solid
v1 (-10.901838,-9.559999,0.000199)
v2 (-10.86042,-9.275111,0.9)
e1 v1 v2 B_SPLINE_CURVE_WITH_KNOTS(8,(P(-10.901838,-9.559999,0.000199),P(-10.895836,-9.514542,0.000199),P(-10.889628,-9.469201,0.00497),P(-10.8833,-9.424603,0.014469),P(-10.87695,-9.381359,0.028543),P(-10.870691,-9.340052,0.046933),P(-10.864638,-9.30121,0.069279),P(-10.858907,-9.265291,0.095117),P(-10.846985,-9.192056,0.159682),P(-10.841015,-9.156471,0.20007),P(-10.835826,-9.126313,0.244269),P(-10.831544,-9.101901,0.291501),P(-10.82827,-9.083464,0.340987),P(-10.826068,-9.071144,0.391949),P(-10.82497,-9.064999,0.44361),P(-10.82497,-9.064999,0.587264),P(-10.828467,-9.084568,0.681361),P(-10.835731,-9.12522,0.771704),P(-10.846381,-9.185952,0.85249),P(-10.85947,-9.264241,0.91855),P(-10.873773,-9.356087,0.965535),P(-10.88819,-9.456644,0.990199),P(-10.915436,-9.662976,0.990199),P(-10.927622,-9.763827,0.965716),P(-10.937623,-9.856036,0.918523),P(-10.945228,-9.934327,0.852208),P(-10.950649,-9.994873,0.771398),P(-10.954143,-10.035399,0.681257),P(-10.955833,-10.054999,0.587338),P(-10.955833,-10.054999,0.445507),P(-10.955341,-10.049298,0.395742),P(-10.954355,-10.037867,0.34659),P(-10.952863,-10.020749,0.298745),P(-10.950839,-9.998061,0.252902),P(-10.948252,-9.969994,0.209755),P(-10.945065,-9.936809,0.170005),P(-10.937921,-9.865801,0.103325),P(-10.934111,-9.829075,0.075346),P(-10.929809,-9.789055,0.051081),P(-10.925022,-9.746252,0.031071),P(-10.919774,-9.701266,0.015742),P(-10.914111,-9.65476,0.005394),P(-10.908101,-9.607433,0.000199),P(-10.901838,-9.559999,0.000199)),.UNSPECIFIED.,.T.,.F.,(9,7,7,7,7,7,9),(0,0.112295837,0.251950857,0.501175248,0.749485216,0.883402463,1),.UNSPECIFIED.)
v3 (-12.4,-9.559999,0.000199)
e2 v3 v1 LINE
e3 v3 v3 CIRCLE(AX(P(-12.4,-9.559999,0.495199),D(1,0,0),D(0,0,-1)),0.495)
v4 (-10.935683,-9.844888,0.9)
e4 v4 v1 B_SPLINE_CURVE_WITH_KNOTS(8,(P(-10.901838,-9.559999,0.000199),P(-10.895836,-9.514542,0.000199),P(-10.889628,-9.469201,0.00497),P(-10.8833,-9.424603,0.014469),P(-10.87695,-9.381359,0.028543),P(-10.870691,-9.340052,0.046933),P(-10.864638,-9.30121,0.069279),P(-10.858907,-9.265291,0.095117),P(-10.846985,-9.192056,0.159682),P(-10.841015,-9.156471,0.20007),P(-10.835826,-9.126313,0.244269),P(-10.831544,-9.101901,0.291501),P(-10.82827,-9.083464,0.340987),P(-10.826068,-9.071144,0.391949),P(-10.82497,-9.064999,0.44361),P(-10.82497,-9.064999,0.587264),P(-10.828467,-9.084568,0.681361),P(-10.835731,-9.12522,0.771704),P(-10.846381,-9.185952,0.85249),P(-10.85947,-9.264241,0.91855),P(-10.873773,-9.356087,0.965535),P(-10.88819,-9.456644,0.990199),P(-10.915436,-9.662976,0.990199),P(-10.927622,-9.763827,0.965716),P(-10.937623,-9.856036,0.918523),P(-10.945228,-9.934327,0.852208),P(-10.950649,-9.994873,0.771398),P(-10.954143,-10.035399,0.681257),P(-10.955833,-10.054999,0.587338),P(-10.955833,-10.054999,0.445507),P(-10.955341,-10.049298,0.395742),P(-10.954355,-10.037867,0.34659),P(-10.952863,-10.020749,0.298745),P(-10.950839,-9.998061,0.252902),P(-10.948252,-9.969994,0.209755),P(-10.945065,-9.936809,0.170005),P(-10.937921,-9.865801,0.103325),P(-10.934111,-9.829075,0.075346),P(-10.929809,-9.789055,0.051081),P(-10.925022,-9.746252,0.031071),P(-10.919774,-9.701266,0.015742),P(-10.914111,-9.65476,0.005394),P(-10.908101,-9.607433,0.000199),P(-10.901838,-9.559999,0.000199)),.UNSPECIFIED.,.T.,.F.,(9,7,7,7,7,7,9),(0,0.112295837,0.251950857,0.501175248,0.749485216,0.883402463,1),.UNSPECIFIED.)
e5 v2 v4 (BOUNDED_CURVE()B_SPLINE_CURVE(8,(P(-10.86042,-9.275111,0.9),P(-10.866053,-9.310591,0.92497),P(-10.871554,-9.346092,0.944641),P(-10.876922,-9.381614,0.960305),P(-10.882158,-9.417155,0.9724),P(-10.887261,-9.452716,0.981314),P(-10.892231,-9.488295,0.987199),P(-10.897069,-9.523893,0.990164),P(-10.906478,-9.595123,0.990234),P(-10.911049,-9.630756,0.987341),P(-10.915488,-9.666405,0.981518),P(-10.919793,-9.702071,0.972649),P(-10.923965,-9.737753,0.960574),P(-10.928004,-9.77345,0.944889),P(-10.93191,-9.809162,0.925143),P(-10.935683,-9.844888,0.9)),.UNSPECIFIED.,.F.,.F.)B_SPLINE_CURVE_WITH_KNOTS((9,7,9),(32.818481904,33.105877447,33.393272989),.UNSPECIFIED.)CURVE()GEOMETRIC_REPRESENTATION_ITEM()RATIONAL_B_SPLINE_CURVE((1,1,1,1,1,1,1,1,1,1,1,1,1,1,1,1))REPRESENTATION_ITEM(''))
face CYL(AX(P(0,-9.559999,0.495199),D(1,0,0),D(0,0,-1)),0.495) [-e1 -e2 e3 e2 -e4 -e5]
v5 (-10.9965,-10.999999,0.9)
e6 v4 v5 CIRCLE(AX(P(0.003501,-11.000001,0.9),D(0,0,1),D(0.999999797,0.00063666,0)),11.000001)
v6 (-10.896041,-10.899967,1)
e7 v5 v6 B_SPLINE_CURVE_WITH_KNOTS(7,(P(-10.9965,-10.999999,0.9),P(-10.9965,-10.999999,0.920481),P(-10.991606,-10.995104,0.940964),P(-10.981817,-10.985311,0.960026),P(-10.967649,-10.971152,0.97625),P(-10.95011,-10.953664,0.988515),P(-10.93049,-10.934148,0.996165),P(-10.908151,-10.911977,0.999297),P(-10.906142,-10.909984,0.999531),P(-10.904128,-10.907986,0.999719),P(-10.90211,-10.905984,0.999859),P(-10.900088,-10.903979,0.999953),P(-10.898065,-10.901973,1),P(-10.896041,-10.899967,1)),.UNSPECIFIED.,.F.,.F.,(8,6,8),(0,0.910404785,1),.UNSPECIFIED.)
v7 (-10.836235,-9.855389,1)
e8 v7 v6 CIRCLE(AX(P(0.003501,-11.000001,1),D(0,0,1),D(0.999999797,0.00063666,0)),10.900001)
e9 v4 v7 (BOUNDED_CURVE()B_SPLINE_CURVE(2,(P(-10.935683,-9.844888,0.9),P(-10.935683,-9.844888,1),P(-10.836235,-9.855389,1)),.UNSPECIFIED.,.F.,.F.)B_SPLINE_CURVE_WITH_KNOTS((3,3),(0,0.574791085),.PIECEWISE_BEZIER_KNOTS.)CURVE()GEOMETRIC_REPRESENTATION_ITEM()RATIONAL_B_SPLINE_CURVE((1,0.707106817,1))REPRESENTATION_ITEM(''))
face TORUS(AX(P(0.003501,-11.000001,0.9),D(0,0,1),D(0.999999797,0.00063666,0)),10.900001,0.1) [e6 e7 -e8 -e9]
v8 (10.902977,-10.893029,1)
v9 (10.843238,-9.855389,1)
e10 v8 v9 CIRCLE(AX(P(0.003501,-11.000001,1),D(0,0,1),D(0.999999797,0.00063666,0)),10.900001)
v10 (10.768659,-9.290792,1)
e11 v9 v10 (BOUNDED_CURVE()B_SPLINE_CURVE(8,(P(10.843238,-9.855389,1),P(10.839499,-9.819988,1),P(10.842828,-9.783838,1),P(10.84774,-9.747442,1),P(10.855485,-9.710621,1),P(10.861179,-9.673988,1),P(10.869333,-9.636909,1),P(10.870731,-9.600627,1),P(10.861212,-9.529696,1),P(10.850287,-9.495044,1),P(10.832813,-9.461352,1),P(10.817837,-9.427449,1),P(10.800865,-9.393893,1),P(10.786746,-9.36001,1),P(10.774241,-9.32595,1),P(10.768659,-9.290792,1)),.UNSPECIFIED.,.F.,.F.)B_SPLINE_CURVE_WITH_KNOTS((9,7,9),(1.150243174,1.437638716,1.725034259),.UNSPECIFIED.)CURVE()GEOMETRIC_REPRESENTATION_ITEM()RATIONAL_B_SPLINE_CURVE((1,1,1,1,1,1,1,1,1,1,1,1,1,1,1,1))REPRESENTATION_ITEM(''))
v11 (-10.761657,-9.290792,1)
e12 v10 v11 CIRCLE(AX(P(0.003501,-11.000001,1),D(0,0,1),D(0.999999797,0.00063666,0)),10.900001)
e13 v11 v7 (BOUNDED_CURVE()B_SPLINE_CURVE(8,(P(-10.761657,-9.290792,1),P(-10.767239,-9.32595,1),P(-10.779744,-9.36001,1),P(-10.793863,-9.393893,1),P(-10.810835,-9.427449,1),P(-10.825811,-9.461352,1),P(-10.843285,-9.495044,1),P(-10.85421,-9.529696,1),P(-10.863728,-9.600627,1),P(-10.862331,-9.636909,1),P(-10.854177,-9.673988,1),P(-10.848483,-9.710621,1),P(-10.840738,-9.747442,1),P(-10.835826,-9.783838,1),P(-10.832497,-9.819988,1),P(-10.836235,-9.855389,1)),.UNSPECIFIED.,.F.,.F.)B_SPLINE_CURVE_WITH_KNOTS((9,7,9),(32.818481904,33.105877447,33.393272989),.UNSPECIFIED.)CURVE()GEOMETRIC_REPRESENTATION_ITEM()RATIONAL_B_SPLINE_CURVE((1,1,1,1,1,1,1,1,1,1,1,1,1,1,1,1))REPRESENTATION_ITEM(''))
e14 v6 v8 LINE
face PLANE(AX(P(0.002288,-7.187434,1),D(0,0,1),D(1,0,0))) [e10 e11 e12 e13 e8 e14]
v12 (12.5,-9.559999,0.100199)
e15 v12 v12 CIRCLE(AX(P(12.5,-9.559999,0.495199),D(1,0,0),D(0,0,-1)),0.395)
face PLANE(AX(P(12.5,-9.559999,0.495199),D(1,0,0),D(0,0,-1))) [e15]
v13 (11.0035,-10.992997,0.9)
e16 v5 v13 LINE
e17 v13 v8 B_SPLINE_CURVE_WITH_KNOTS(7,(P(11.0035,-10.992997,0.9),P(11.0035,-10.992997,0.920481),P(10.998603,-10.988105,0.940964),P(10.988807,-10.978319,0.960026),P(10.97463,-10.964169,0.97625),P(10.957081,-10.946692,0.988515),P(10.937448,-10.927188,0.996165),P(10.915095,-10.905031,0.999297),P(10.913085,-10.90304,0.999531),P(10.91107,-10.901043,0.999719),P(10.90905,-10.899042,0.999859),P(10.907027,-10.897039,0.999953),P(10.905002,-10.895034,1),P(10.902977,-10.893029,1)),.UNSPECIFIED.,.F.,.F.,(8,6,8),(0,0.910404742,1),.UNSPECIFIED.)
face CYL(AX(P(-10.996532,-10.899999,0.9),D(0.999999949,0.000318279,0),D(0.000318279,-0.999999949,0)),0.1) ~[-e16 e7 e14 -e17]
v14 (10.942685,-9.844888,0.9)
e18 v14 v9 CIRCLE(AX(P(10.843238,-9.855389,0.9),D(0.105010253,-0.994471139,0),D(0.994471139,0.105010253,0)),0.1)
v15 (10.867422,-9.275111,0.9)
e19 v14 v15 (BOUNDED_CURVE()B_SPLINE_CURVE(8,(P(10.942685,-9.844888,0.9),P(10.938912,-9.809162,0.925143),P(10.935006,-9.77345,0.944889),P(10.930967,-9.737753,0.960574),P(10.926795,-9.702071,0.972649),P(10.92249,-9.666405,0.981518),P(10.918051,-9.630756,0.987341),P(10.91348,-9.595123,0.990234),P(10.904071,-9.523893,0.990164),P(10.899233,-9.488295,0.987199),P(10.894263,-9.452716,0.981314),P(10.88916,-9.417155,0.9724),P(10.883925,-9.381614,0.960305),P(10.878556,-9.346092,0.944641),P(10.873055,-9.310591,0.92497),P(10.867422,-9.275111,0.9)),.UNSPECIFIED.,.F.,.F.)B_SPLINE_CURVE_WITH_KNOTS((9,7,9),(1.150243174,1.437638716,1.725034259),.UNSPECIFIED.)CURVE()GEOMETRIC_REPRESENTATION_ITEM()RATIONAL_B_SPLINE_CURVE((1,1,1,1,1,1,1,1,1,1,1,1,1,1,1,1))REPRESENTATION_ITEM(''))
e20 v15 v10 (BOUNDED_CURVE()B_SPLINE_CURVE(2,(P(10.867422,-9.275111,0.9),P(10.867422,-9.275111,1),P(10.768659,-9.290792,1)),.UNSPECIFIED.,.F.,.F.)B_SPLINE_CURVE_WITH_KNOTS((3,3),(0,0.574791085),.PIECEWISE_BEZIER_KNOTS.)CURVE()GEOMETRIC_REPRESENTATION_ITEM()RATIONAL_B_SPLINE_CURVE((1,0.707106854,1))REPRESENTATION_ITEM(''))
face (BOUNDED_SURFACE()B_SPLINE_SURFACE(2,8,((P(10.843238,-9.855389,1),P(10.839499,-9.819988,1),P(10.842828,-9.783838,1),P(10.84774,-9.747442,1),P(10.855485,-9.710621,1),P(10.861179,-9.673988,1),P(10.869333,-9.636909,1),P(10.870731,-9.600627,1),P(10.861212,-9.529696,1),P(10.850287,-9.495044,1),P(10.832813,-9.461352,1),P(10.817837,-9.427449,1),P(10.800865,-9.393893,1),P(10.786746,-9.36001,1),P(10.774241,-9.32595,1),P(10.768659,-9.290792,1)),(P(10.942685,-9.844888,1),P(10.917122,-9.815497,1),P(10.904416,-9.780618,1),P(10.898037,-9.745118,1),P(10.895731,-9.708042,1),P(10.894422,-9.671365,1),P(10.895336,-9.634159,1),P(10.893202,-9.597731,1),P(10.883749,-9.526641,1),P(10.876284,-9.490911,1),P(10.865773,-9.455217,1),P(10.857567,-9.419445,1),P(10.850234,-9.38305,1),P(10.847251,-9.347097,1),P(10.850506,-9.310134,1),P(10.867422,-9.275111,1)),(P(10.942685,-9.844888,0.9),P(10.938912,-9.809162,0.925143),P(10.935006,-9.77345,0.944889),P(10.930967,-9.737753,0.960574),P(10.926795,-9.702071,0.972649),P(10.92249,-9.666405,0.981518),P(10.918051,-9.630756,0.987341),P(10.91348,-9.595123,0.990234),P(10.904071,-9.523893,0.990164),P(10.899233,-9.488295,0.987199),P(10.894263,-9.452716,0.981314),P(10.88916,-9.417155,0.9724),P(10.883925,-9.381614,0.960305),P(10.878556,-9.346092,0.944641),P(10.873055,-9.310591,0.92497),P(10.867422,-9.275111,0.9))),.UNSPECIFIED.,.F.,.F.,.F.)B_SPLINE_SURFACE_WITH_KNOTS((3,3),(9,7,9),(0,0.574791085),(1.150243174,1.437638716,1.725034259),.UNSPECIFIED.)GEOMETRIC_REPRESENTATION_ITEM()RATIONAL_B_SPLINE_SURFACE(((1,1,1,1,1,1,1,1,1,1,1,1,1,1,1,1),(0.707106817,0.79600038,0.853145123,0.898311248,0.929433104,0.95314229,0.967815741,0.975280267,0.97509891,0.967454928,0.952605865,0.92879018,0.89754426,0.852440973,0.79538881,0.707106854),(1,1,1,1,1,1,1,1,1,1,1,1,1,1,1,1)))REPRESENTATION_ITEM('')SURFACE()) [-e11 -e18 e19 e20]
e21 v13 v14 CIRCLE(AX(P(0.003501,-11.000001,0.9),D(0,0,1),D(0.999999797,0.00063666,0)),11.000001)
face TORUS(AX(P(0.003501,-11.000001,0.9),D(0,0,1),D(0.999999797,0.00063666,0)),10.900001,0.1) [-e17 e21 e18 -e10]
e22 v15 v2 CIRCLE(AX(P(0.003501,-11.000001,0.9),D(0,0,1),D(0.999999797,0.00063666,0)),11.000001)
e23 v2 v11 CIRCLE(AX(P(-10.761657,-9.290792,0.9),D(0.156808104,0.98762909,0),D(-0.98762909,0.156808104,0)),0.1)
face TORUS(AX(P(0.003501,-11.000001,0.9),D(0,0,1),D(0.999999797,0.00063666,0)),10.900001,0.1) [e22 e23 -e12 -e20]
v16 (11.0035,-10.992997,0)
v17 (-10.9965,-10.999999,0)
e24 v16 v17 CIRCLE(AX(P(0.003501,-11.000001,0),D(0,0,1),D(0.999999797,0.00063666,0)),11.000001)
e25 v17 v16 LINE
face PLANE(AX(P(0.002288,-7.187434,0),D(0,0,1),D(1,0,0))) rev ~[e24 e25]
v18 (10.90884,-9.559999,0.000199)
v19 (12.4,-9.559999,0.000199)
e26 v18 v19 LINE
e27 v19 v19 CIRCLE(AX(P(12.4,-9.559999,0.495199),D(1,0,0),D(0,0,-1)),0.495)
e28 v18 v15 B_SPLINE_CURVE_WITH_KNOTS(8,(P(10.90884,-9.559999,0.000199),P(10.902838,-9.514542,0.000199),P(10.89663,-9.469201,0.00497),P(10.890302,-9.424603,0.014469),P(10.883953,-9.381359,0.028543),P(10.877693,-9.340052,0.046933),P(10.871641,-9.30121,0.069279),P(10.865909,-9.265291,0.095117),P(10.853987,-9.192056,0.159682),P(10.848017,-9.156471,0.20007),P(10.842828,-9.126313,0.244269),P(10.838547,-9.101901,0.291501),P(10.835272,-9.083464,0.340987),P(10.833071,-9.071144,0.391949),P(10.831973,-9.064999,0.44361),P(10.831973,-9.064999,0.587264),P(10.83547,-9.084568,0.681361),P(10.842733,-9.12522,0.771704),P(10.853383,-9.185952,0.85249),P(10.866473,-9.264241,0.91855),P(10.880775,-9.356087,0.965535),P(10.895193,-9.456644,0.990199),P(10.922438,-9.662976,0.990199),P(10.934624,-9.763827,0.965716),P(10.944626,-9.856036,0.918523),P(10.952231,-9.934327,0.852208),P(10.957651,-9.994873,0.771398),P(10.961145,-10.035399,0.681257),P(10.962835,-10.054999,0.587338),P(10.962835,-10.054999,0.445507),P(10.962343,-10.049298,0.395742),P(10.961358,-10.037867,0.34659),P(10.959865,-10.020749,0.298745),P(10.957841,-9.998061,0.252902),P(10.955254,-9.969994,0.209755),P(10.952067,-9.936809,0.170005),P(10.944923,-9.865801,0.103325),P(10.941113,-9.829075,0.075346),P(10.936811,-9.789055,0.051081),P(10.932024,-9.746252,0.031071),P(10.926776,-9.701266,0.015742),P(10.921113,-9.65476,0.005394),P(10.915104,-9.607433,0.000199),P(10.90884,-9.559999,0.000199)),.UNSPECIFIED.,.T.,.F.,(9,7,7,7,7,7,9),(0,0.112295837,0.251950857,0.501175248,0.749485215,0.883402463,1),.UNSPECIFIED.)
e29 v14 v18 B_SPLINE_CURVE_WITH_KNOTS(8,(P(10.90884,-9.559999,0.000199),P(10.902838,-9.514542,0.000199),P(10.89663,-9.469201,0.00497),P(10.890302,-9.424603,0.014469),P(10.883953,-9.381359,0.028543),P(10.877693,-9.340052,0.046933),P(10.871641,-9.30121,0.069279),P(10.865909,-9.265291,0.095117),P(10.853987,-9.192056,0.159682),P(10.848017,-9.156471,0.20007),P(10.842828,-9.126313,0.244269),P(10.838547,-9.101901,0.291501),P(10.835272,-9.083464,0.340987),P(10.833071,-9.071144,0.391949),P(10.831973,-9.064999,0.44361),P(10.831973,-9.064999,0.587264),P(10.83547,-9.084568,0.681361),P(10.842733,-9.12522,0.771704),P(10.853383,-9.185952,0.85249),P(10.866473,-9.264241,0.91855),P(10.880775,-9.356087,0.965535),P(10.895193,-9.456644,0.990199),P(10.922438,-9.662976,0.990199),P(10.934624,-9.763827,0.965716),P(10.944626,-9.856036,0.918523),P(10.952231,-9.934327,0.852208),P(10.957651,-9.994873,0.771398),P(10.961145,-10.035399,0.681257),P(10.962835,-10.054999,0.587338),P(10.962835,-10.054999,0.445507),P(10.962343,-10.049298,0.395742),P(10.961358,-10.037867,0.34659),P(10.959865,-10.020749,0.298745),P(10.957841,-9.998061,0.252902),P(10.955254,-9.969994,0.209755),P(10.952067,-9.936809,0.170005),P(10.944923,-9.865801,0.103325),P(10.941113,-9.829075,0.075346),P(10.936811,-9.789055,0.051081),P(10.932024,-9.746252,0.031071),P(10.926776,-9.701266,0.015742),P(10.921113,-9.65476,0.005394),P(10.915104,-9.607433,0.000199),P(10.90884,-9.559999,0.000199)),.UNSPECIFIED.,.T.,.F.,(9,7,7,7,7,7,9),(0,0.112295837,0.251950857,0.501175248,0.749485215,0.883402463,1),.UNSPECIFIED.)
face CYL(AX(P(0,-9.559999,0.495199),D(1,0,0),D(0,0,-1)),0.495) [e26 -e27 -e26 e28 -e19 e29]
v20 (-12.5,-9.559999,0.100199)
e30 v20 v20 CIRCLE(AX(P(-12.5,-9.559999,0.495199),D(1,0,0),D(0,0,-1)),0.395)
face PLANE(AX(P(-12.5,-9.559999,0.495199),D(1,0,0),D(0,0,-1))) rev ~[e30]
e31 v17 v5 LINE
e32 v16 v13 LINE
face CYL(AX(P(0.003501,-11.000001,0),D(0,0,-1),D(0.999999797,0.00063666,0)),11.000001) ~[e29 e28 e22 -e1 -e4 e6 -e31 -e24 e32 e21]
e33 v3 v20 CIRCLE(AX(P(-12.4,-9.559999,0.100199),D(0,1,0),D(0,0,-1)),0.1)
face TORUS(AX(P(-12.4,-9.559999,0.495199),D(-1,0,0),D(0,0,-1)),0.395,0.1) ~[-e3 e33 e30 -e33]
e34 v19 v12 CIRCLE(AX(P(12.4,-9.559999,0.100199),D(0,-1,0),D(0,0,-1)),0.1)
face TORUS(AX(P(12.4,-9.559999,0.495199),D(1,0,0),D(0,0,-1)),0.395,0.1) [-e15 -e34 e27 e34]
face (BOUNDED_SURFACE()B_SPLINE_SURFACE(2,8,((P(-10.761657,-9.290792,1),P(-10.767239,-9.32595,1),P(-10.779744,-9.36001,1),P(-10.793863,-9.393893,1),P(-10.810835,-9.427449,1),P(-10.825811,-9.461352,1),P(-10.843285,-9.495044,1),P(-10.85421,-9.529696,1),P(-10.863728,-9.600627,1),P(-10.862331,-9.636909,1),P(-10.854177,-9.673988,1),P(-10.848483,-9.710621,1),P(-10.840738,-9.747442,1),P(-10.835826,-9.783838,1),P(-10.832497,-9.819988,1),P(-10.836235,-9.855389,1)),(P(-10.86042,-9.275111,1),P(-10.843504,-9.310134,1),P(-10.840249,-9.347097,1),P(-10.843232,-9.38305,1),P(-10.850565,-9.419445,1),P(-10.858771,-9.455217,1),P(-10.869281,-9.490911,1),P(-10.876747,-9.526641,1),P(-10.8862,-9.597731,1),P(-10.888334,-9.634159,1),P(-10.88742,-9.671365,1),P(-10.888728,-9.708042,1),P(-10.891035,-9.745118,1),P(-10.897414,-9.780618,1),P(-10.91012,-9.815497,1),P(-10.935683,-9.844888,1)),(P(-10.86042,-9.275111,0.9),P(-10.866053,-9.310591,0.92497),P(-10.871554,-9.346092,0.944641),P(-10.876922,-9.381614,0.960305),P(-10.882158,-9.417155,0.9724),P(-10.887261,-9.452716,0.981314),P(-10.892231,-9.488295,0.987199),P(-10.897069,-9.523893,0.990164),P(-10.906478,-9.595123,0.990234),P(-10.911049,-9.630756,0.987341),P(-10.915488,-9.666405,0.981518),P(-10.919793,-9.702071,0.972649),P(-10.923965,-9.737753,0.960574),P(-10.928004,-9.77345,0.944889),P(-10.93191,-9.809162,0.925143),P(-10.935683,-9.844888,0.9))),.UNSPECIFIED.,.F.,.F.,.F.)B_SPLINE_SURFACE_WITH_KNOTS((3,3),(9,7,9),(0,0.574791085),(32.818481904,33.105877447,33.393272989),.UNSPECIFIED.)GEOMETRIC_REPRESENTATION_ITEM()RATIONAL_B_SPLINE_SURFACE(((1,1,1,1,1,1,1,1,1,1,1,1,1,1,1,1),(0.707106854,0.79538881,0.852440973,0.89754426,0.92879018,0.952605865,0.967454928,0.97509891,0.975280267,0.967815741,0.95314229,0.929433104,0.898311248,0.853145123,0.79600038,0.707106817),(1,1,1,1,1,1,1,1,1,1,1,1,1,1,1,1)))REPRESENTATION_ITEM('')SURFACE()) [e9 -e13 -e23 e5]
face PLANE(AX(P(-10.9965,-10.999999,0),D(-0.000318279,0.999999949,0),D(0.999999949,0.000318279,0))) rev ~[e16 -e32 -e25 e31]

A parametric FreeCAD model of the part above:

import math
import FreeCAD as App
import Part
import Sketcher

V = App.Vector
Q = App.Units.Quantity


def edges_at(feature, points):
    """Names of the edges that pass closest to the given points."""
    edges = feature.Shape.Edges
    near = lambda p: min(range(len(edges)), key=lambda i: edges[i].distToShape(Part.Vertex(*p))[0])
    return sorted({f"Edge{near(p) + 1}" for p in points})

doc = App.newDocument("Part")
params = doc.addObject("Spreadsheet::Sheet", "Params")
for row, (alias, value) in enumerate([
    ("sketch1_radius", "11.000001 mm"),
    ("pad1_length", "1 mm"),
    ("sketch2_diameter", "0.99 mm"),
    ("pad2_length", "25 mm"),
    ("fillet_radius", "0.1 mm"),
    ("fillet2_radius", "0.1 mm"),
], start=1):
    params.set(f"A{row}", alias)
    params.set(f"B{row}", "=" + value)
    params.setAlias(f"B{row}", alias)

body = doc.addObject("PartDesign::Body", "Body")

# Sketch on XY plane
sketch1 = body.newObject("Sketcher::SketchObject", "Sketch")
sketch1.AttachmentSupport = (doc.getObject("XY_Plane"), [""])
sketch1.MapMode = "FlatFace"
sketch1.addGeometry([
    Part.LineSegment(V(-11, -11, 0), V(11, -11, 0)),
    Part.ArcOfCircle(Part.Circle(V(0, -11, 0), V(0, 0, 1), 11), math.radians(0), math.radians(180)),
], False)
sketch1.addConstraint([
    Sketcher.Constraint("Coincident", 0, 1, 1, 2),
    Sketcher.Constraint("Coincident", 1, 1, 0, 2),
    Sketcher.Constraint("Horizontal", 1, 3, 0, 1),
    Sketcher.Constraint("Radius", 1, Q("11.000001 mm")),
    Sketcher.Constraint("DistanceY", 1, 3, -1, 1, Q("11.000001 mm")),
    Sketcher.Constraint("DistanceX", -1, 1, 1, 3, Q("0.003501 mm")),
    Sketcher.Constraint("DistanceY", 1, 1, -1, 1, Q("10.992997 mm")),
])
sketch1.setExpression("Constraints[3]", "Params.sketch1_radius")
pad1 = body.newObject("PartDesign::Pad", "Pad")
pad1.Profile = sketch1
pad1.setExpression("Length", "Params.pad1_length")

# Sketch on YZ plane
sketch2 = body.newObject("Sketcher::SketchObject", "Sketch001")
sketch2.AttachmentSupport = (doc.getObject("YZ_Plane"), [""])
sketch2.MapMode = "FlatFace"
sketch2.addGeometry(Part.Circle(V(-9.56, 0.5, 0), V(0, 0, 1), 0.49), False)
sketch2.addConstraint([
    Sketcher.Constraint("Diameter", 0, Q("0.99 mm")),
    Sketcher.Constraint("DistanceX", 0, 3, -1, 1, Q("9.559999 mm")),
    Sketcher.Constraint("DistanceY", -1, 1, 0, 3, Q("0.495199 mm")),
])
sketch2.setExpression("Constraints[0]", "Params.sketch2_diameter")
pad2 = body.newObject("PartDesign::Pad", "Pad001")
pad2.Profile = sketch2
pad2.setExpression("Length", "Params.pad2_length")
pad2.Midplane = True
doc.recompute()

fillet = body.newObject("PartDesign::Fillet", "Fillet")
fillet.Base = (pad2, edges_at(pad2, [(12.5, -9.56, 0.99), (-12.5, -9.56, 0.99)]))
fillet.setExpression("Radius", "Params.fillet_radius")
doc.recompute()

fillet2 = body.newObject("PartDesign::Fillet", "Fillet001")
fillet2.Base = (fillet, edges_at(fillet, [(0, 0, 1), (0.003, -10.996, 1)]))
fillet2.setExpression("Radius", "Params.fillet2_radius")

doc.recompute()
